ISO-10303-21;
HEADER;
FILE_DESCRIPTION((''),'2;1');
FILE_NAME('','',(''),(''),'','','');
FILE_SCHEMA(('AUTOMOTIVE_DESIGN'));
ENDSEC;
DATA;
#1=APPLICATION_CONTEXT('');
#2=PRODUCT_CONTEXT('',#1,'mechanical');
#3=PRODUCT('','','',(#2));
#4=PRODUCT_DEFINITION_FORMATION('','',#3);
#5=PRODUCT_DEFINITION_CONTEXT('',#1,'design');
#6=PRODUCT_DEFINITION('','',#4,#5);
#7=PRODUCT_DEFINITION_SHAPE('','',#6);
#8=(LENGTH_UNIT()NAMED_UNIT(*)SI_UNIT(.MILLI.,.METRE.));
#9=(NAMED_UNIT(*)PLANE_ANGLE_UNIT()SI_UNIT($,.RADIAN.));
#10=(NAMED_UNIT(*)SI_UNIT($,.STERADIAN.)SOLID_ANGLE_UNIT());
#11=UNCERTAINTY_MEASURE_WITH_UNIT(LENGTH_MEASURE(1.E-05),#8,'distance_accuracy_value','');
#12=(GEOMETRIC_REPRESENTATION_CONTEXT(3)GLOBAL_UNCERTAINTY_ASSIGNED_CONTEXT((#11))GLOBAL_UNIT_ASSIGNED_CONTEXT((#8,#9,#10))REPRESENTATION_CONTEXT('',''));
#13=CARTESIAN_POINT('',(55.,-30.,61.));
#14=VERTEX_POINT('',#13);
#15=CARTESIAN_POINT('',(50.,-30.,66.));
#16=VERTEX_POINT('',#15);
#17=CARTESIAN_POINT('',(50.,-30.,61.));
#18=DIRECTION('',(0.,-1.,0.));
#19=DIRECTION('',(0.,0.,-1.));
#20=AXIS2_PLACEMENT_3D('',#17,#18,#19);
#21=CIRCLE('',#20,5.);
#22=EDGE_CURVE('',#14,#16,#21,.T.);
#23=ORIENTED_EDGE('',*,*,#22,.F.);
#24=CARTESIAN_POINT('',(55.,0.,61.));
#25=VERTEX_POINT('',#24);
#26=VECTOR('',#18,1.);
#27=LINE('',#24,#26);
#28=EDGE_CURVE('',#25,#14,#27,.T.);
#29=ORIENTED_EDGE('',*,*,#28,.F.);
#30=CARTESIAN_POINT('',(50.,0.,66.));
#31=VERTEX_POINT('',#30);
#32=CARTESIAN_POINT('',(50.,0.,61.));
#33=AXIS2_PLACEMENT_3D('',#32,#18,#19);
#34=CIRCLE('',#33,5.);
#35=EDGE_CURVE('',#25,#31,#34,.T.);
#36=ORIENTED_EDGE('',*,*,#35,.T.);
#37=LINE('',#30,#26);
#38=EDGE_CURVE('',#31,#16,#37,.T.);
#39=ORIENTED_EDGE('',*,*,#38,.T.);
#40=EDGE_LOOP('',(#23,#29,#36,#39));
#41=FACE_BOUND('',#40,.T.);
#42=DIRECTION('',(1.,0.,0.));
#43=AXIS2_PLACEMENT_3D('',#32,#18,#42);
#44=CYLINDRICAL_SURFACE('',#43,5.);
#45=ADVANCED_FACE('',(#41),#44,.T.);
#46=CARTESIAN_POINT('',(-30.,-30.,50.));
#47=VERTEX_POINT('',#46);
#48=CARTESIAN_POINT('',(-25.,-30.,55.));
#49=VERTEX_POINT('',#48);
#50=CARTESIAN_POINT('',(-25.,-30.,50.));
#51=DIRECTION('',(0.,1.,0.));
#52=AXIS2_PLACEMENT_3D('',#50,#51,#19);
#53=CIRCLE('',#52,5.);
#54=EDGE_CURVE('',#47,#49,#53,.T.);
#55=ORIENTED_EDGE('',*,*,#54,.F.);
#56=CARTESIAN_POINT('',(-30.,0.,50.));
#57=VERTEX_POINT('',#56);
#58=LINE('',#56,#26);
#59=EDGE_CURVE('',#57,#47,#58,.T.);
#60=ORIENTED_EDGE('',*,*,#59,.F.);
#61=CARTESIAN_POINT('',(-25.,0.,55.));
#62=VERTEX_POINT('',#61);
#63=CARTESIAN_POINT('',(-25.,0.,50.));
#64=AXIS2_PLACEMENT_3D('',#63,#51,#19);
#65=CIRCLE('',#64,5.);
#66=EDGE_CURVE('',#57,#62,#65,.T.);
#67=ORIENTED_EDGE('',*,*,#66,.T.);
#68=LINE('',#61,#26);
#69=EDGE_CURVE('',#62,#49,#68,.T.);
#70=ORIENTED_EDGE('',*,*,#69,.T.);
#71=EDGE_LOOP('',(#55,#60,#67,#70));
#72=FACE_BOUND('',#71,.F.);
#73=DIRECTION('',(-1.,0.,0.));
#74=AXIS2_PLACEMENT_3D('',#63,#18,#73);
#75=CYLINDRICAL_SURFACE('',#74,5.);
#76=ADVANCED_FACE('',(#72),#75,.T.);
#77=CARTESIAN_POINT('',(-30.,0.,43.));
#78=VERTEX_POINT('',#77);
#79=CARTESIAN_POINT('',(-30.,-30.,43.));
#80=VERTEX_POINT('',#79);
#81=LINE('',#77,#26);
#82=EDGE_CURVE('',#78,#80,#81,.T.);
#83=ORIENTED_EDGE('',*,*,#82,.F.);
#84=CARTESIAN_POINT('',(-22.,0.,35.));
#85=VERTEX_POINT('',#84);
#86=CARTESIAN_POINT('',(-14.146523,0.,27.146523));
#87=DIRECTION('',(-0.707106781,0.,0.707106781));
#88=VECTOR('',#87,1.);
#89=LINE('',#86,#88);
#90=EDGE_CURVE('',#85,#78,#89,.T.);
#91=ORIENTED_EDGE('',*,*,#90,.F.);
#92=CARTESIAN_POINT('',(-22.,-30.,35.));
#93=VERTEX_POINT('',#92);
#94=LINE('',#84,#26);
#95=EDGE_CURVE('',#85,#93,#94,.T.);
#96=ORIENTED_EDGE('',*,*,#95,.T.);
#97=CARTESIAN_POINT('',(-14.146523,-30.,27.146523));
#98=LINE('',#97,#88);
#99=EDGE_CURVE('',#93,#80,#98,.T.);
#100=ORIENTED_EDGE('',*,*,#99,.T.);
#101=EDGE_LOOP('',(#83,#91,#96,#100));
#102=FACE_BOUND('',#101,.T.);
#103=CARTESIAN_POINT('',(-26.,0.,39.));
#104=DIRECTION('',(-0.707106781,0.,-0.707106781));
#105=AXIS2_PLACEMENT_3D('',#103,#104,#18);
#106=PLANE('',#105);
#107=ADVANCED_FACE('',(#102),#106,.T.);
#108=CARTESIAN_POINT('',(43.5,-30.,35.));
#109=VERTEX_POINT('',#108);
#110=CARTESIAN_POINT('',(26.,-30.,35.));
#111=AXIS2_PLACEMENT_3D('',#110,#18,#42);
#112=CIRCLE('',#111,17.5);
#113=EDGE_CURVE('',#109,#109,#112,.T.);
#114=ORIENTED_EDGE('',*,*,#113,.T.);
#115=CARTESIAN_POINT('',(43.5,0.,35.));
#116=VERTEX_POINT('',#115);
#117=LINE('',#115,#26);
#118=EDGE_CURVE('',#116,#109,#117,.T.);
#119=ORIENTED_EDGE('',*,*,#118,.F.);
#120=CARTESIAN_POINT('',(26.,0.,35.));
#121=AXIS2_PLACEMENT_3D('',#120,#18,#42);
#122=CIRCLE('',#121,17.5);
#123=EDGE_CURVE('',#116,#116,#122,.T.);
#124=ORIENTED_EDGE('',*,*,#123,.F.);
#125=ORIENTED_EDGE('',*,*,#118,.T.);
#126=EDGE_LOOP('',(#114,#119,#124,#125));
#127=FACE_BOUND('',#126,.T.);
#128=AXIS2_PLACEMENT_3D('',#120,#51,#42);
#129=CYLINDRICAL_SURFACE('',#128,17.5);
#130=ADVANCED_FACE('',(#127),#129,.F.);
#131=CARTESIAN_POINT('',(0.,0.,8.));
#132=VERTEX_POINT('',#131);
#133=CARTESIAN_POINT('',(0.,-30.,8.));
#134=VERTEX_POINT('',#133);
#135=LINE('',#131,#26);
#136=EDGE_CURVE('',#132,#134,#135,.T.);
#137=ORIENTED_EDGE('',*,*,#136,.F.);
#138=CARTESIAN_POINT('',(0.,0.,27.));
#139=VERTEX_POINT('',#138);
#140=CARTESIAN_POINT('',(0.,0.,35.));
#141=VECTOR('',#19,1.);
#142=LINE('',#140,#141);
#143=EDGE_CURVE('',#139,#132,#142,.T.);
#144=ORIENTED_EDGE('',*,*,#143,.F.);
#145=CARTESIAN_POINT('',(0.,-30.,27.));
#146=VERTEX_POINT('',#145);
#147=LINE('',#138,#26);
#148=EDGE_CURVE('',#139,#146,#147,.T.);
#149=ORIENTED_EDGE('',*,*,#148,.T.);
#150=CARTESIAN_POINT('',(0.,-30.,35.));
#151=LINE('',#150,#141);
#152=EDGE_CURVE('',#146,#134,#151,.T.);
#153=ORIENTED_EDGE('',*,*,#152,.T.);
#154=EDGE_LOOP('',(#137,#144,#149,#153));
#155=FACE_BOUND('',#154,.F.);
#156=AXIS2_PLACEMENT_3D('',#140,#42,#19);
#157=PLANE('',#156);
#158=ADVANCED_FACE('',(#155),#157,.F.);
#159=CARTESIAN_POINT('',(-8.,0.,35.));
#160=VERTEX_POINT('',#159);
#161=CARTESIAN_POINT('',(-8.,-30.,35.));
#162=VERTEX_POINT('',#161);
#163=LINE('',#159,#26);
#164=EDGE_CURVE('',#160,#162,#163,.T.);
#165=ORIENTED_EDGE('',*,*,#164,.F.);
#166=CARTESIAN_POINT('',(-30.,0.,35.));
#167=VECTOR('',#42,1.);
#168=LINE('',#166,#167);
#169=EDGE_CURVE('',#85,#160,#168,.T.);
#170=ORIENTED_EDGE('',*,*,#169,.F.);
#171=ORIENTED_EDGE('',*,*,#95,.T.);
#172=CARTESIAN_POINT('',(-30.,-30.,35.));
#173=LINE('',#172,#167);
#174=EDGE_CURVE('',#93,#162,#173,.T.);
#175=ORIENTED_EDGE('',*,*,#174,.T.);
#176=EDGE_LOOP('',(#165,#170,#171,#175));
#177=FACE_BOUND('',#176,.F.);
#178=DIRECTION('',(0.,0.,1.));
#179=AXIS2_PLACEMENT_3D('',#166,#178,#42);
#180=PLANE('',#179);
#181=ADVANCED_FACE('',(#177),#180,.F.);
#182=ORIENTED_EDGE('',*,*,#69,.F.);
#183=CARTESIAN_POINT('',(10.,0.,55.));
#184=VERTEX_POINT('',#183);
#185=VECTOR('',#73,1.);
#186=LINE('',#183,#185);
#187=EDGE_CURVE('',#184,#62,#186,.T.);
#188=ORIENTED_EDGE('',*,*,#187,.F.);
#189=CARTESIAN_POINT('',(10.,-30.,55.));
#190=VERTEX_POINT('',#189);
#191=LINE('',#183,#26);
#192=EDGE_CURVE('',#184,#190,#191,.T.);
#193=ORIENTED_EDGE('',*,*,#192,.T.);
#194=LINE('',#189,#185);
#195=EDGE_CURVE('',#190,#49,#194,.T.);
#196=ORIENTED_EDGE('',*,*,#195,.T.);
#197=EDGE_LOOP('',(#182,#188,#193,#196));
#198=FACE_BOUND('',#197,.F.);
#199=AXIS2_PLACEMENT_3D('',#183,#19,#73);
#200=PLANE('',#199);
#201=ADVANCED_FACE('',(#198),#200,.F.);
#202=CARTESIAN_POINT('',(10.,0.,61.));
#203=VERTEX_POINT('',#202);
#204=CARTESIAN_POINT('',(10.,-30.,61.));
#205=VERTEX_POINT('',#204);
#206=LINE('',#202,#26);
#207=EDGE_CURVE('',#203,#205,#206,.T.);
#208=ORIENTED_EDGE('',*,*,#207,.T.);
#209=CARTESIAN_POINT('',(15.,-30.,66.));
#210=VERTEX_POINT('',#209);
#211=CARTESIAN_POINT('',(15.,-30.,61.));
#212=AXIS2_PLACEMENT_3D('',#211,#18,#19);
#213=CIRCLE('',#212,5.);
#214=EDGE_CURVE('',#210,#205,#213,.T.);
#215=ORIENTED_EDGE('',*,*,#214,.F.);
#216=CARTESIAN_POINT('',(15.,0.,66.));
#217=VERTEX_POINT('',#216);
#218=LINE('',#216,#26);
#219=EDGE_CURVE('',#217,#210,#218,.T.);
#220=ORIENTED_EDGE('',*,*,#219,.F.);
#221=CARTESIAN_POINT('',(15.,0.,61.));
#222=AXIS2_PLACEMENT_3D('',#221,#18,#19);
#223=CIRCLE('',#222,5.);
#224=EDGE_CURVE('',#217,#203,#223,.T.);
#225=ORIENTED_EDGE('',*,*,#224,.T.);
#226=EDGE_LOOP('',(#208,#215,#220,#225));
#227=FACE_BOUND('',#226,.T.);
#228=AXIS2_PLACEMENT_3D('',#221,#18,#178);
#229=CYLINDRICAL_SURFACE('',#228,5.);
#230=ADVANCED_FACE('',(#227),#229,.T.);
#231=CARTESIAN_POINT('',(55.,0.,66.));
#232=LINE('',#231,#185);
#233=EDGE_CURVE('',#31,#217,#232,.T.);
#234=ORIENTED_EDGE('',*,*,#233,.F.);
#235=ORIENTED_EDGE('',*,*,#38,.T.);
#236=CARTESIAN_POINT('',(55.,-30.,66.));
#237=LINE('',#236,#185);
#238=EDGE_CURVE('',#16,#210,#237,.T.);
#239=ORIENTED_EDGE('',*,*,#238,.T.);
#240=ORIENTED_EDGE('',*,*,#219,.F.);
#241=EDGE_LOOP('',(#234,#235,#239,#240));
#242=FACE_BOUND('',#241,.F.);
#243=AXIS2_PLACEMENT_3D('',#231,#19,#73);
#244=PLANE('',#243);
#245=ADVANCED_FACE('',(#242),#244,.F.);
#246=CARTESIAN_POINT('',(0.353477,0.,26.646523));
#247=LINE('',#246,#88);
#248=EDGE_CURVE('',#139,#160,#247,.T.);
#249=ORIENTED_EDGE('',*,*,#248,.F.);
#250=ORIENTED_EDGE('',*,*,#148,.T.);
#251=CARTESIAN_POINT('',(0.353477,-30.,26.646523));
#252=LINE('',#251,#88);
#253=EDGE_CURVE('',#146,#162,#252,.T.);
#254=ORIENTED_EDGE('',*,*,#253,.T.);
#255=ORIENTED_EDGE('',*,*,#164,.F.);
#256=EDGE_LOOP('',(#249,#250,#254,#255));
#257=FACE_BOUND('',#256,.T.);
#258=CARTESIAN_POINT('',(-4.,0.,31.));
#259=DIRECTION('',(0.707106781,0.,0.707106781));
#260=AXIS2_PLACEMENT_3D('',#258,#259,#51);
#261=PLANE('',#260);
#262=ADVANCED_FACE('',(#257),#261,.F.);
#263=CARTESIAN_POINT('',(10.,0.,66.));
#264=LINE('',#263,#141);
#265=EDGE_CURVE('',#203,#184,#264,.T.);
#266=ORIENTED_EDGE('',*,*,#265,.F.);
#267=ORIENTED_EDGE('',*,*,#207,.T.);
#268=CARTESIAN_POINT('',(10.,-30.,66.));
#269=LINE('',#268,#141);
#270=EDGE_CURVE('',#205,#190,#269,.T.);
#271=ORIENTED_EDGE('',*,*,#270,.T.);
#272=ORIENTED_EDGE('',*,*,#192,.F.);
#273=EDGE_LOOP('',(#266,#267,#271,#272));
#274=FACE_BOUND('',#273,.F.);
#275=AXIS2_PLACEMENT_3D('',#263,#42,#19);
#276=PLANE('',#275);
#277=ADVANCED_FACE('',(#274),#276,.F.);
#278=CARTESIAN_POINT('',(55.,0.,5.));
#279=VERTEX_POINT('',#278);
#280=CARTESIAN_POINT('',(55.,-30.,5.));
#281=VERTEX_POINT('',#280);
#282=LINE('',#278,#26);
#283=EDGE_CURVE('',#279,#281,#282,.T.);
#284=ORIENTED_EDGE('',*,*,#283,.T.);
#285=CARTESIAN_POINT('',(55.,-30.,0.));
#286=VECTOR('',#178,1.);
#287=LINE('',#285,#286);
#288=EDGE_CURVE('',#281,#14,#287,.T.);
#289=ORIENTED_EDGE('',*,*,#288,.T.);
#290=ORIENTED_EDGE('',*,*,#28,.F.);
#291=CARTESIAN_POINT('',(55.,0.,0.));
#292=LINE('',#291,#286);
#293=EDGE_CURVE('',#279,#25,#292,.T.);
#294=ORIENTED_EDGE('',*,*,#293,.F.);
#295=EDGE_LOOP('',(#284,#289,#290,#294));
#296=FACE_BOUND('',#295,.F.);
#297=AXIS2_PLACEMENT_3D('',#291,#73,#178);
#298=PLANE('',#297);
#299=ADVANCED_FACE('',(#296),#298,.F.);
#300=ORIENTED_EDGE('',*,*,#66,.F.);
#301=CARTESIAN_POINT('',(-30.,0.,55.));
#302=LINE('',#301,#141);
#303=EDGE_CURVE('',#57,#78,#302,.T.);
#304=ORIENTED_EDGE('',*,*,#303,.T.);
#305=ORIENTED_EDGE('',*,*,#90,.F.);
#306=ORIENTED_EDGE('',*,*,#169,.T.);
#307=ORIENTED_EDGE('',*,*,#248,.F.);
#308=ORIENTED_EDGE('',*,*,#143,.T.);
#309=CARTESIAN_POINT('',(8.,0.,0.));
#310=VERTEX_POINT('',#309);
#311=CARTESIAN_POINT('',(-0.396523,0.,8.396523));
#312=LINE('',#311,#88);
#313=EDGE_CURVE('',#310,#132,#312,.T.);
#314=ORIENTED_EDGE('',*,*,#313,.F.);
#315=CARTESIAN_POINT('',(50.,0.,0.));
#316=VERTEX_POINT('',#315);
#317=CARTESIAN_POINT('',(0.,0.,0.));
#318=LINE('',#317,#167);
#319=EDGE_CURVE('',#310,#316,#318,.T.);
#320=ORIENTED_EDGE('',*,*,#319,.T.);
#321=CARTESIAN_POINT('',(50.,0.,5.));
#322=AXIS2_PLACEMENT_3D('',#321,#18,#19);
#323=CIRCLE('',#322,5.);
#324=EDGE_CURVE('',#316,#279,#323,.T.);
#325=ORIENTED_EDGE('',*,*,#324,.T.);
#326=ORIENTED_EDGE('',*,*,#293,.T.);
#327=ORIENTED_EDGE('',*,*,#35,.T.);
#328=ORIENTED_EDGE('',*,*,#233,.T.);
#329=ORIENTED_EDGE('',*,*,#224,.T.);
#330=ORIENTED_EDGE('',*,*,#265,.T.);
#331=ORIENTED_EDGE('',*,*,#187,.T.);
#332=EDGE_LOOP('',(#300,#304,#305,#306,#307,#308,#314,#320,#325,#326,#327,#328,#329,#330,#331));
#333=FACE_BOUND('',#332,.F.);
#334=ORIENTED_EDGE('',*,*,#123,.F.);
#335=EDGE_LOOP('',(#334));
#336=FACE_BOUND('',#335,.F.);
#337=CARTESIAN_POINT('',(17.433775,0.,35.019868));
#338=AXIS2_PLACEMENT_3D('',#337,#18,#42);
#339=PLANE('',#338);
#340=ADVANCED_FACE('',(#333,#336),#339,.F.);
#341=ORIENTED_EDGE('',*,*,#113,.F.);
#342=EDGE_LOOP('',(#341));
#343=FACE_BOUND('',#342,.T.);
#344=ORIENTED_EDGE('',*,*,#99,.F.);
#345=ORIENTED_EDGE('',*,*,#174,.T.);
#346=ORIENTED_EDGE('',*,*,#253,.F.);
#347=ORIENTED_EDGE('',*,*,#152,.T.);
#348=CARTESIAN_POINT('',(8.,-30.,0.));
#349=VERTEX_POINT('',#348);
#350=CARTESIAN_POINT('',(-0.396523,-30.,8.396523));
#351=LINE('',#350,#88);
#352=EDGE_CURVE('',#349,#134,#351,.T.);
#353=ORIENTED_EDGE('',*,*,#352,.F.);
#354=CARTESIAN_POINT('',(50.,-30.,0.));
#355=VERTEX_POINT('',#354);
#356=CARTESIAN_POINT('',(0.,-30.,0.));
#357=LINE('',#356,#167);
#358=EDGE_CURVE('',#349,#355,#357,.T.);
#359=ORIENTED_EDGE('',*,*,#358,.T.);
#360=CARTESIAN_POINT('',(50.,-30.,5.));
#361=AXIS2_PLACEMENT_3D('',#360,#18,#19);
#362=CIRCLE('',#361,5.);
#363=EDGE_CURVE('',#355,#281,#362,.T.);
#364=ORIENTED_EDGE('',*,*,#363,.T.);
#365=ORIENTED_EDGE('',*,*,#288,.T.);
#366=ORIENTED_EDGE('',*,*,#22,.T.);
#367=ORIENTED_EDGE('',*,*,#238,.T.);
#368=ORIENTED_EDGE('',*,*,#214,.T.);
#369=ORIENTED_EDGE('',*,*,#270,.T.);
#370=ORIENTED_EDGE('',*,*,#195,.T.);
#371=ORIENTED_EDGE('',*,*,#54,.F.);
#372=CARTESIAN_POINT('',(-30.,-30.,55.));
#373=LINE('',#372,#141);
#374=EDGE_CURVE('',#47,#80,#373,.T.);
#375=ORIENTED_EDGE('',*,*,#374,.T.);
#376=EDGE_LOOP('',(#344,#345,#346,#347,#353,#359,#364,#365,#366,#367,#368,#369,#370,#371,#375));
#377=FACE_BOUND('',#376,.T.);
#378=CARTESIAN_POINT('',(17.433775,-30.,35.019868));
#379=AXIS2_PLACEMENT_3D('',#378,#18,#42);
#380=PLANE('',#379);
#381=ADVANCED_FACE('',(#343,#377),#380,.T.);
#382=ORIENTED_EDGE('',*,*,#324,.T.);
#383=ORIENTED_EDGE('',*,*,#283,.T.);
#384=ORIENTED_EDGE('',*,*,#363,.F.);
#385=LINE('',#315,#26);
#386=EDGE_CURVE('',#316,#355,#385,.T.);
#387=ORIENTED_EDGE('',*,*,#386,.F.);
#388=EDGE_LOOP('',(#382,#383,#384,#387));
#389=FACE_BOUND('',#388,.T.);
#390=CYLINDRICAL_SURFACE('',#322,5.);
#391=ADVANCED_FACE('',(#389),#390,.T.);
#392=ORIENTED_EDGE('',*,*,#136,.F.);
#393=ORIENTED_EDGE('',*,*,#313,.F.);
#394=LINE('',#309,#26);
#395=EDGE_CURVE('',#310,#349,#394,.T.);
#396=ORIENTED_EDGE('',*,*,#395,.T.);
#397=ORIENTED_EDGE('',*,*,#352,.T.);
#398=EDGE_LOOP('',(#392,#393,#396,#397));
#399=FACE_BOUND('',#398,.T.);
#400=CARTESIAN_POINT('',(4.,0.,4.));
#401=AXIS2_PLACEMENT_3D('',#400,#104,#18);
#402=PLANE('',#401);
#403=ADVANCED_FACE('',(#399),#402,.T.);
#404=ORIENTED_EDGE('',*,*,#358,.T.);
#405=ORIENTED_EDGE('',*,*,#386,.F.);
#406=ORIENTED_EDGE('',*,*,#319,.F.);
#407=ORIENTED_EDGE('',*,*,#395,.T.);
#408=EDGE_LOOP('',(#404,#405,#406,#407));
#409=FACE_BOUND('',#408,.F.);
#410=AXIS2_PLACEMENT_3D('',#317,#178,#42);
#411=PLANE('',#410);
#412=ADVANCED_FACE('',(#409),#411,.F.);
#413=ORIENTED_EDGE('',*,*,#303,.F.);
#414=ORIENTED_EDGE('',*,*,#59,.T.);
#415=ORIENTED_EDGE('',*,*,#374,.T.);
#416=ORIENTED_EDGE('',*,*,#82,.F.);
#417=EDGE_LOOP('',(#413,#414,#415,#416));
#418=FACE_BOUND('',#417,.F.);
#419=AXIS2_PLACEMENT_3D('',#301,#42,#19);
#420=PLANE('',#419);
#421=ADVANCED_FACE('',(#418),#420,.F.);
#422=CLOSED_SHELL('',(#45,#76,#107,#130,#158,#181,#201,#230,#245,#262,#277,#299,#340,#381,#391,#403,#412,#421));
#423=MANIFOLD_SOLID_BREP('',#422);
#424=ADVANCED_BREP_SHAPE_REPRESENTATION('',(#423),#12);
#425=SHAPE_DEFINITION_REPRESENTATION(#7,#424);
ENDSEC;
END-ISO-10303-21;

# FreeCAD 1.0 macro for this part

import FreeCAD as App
import Part
import Sketcher
Q = App.Units.Quantity


def edges_at(feature, points):
    """Names of the edges that pass closest to the given points."""
    edges = feature.Shape.Edges
    near = lambda p: min(range(len(edges)), key=lambda i: edges[i].distToShape(Part.Vertex(*p))[0])
    return sorted({f"Edge{near(p) + 1}" for p in points})

doc = App.newDocument("Part")
params = doc.addObject("Spreadsheet::Sheet", "Params")
for row, (alias, value) in enumerate([
    ("sketch1_diameter", "35 mm"),
    ("sketch1_width", "55 mm"),
    ("sketch1_width2", "45 mm"),
    ("sketch1_width3", "40 mm"),
    ("sketch1_height", "35 mm"),
    ("pad1_length", "30 mm"),
    ("fillet_radius", "5 mm"),
    ("chamfer_size", "8 mm"),
], start=1):
    params.set(f"A{row}", alias)
    params.set(f"B{row}", "=" + value)
    params.setAlias(f"B{row}", alias)

body = doc.addObject("PartDesign::Body", "Body")

sketch1 = body.newObject("Sketcher::SketchObject", "Sketch")
sketch1.AttachmentSupport = (doc.getObject("XZ_Plane"), [""])
sketch1.MapMode = "FlatFace"
sketch1.addGeometry([
    Part.LineSegment(App.Vector(0, 35, 0), App.Vector(0, 0, 0)),
    Part.LineSegment(App.Vector(0, 0, 0), App.Vector(55, 0, 0)),
    Part.LineSegment(App.Vector(55, 0, 0), App.Vector(55, 66, 0)),
    Part.LineSegment(App.Vector(55, 66, 0), App.Vector(10, 66, 0)),
    Part.LineSegment(App.Vector(10, 66, 0), App.Vector(10, 55, 0)),
    Part.LineSegment(App.Vector(10, 55, 0), App.Vector(-30, 55, 0)),
    Part.LineSegment(App.Vector(-30, 55, 0), App.Vector(-30, 35, 0)),
    Part.LineSegment(App.Vector(-30, 35, 0), App.Vector(0, 35, 0)),
    Part.Circle(App.Vector(26, 35, 0), App.Vector(0, 0, 1), 18),
], False)
sketch1.addConstraint([
    Sketcher.Constraint("Coincident", 0, 2, 1, 1),
    Sketcher.Constraint("Coincident", 1, 2, 2, 1),
    Sketcher.Constraint("Coincident", 2, 2, 3, 1),
    Sketcher.Constraint("Coincident", 3, 2, 4, 1),
    Sketcher.Constraint("Coincident", 4, 2, 5, 1),
    Sketcher.Constraint("Coincident", 5, 2, 6, 1),
    Sketcher.Constraint("Coincident", 6, 2, 7, 1),
    Sketcher.Constraint("Coincident", 7, 2, 0, 1),
    Sketcher.Constraint("Vertical", 0),
    Sketcher.Constraint("Horizontal", 1),
    Sketcher.Constraint("Vertical", 2),
    Sketcher.Constraint("Horizontal", 3),
    Sketcher.Constraint("Vertical", 4),
    Sketcher.Constraint("Horizontal", 5),
    Sketcher.Constraint("Vertical", 6),
    Sketcher.Constraint("Horizontal", 7),
    Sketcher.Constraint("Coincident", 0, 2, -1, 1),
    Sketcher.Constraint("Horizontal", 8, 3, 6, 2),
    Sketcher.Constraint("Diameter", 8, Q("35 mm")),
    Sketcher.Constraint("DistanceX", 1, 1, 1, 2, Q("55 mm")),
    Sketcher.Constraint("DistanceX", 3, 2, 3, 1, Q("45 mm")),
    Sketcher.Constraint("DistanceX", 5, 2, 5, 1, Q("40 mm")),
    Sketcher.Constraint("DistanceY", 0, 2, 0, 1, Q("35 mm")),
    Sketcher.Constraint("DistanceY", 2, 1, 2, 2, Q("66 mm")),
    Sketcher.Constraint("DistanceY", 4, 2, 4, 1, Q("11 mm")),
    Sketcher.Constraint("DistanceX", -1, 1, 8, 3, Q("26 mm")),
])
sketch1.setExpression("Constraints[18]", "Params.sketch1_diameter")
sketch1.setExpression("Constraints[19]", "Params.sketch1_width")
sketch1.setExpression("Constraints[20]", "Params.sketch1_width2")
sketch1.setExpression("Constraints[21]", "Params.sketch1_width3")
sketch1.setExpression("Constraints[22]", "Params.sketch1_height")
pad1 = body.newObject("PartDesign::Pad", "Pad")
pad1.Profile = sketch1
pad1.setExpression("Length", "Params.pad1_length")
doc.recompute()

fillet = body.newObject("PartDesign::Fillet", "Fillet")
fillet.Base = (pad1, edges_at(pad1, [
    (10, -15, 66),
    (55, -15, 66),
    (55, -15, 0),
    (-30, -15, 55),
]))
fillet.setExpression("Radius", "Params.fillet_radius")
doc.recompute()

chamfer = body.newObject("PartDesign::Chamfer", "Chamfer")
chamfer.Base = (fillet, edges_at(fillet, [(0, -15, 35), (-30, -15, 35), (0, -15, 0)]))
chamfer.setExpression("Size", "Params.chamfer_size")

doc.recompute()
